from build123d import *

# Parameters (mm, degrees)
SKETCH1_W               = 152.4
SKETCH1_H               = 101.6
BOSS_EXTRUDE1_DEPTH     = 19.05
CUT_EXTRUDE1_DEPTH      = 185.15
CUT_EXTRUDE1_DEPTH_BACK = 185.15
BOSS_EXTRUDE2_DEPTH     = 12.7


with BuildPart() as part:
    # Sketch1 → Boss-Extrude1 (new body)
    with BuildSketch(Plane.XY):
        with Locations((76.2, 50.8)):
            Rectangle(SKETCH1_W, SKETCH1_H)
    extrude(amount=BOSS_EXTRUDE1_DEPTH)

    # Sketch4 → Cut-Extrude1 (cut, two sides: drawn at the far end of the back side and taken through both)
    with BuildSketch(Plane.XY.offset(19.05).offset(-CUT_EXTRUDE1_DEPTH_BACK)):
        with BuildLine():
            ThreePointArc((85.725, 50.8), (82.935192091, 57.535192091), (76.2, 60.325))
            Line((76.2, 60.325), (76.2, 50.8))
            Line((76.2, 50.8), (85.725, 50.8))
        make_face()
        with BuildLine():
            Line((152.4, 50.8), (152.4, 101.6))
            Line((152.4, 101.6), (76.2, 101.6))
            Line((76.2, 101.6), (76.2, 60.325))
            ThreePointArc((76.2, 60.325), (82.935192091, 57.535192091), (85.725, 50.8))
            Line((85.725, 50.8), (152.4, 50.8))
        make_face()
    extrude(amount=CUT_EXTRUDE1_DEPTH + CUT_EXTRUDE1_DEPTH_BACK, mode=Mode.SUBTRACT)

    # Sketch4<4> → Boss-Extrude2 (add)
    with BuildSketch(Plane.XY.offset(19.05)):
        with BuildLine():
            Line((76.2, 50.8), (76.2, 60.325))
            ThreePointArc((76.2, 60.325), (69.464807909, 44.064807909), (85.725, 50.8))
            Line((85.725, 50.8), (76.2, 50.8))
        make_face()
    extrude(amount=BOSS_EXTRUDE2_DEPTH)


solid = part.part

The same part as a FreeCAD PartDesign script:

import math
import FreeCAD as App
import Part
import Sketcher

V = App.Vector
Q = App.Units.Quantity


def add_polygon(sketch, points):
    """Adds a closed chain of lines whose ends are joined by coincident constraints."""
    first, n = sketch.GeometryCount, len(points)
    for a, b in zip(points, points[1:] + points[:1]):
        sketch.addGeometry(Part.LineSegment(App.Vector(*a, 0), App.Vector(*b, 0)), False)
    for i in range(n):
        sketch.addConstraint(Sketcher.Constraint("Coincident", first + i, 2, first + (i + 1) % n, 1))

doc = App.newDocument("Part")
body = doc.addObject("PartDesign::Body", "Body")

sketch1 = doc.addObject("Sketcher::SketchObject", "Sketch")
body.addObject(sketch1)
sketch1.AttachmentSupport = (doc.XY_Plane, [""])
sketch1.MapMode = "FlatFace"
add_polygon(sketch1, [(0, 101.6), (0, 0), (152.4, 0), (152.4, 101.6)])
sketch1.addConstraint([
    Sketcher.Constraint("Vertical", 0),
    Sketcher.Constraint("Horizontal", 1),
    Sketcher.Constraint("Vertical", 2),
    Sketcher.Constraint("Horizontal", 3),
    Sketcher.Constraint("Coincident", 0, 2, -1, 1),
    Sketcher.Constraint("DistanceX", 1, 1, 1, 2, Q("6 in")),
    Sketcher.Constraint("DistanceY", 0, 2, 0, 1, Q("4 in")),
])
pad1 = doc.addObject("PartDesign::Pad", "Pad")
body.addObject(pad1)
pad1.Profile = sketch1
pad1.Length = Q("0.75 in")

sketch2 = doc.addObject("Sketcher::SketchObject", "Sketch001")
body.addObject(sketch2)
sketch2.AttachmentSupport = (doc.XY_Plane, [""])
sketch2.MapMode = "FlatFace"
sketch2.AttachmentOffset = App.Placement(V(0, 0, 0.75 * 25.4), App.Rotation())
add_polygon(sketch2, [(76.2, 50.8), (152.4, 50.8), (152.4, 101.6), (76.2, 101.6)])
sketch2.addConstraint([
    Sketcher.Constraint("Horizontal", 0),
    Sketcher.Constraint("Vertical", 1),
    Sketcher.Constraint("Horizontal", 2),
    Sketcher.Constraint("Vertical", 3),
    Sketcher.Constraint("DistanceX", 0, 1, 0, 2, Q("3 in")),
    Sketcher.Constraint("DistanceY", 1, 1, 1, 2, Q("2 in")),
    Sketcher.Constraint("DistanceX", -1, 1, 0, 2, Q("6 in")),
    Sketcher.Constraint("DistanceY", -1, 1, 0, 2, Q("2 in")),
])
pocket1 = doc.addObject("PartDesign::Pocket", "Pocket")
body.addObject(pocket1)
pocket1.Profile = sketch2
pocket1.Type = "ThroughAll"
pocket1.Midplane = True

sketch3 = doc.addObject("Sketcher::SketchObject", "Sketch002")
body.addObject(sketch3)
sketch3.AttachmentSupport = (doc.XY_Plane, [""])
sketch3.MapMode = "FlatFace"
sketch3.AttachmentOffset = App.Placement(V(0, 0, 0.75 * 25.4), App.Rotation())
sketch3.addGeometry([
    Part.LineSegment(V(76.2, 50.8, 0), V(76.2, 60.325, 0)),
    Part.ArcOfCircle(Part.Circle(V(76.2, 50.8, 0), V(0, 0, 1), 9.525), math.radians(90), math.radians(360)),
    Part.LineSegment(V(85.725, 50.8, 0), V(76.2, 50.8, 0)),
], False)
sketch3.addConstraint([
    Sketcher.Constraint("Coincident", 0, 2, 1, 1),
    Sketcher.Constraint("Coincident", 1, 2, 2, 1),
    Sketcher.Constraint("Coincident", 2, 2, 0, 1),
    Sketcher.Constraint("Vertical", 0),
    Sketcher.Constraint("Horizontal", 2),
    Sketcher.Constraint("Coincident", 2, 2, 1, 3),
    Sketcher.Constraint("DistanceX", -1, 1, 1, 3, Q("3 in")),
    Sketcher.Constraint("DistanceY", -1, 1, 1, 3, Q("2 in")),
    Sketcher.Constraint("Radius", 1, Q("0.375 in")),
])
pad2 = doc.addObject("PartDesign::Pad", "Pad001")
body.addObject(pad2)
pad2.Profile = sketch3
pad2.Length = Q("0.5 in")

doc.recompute()
